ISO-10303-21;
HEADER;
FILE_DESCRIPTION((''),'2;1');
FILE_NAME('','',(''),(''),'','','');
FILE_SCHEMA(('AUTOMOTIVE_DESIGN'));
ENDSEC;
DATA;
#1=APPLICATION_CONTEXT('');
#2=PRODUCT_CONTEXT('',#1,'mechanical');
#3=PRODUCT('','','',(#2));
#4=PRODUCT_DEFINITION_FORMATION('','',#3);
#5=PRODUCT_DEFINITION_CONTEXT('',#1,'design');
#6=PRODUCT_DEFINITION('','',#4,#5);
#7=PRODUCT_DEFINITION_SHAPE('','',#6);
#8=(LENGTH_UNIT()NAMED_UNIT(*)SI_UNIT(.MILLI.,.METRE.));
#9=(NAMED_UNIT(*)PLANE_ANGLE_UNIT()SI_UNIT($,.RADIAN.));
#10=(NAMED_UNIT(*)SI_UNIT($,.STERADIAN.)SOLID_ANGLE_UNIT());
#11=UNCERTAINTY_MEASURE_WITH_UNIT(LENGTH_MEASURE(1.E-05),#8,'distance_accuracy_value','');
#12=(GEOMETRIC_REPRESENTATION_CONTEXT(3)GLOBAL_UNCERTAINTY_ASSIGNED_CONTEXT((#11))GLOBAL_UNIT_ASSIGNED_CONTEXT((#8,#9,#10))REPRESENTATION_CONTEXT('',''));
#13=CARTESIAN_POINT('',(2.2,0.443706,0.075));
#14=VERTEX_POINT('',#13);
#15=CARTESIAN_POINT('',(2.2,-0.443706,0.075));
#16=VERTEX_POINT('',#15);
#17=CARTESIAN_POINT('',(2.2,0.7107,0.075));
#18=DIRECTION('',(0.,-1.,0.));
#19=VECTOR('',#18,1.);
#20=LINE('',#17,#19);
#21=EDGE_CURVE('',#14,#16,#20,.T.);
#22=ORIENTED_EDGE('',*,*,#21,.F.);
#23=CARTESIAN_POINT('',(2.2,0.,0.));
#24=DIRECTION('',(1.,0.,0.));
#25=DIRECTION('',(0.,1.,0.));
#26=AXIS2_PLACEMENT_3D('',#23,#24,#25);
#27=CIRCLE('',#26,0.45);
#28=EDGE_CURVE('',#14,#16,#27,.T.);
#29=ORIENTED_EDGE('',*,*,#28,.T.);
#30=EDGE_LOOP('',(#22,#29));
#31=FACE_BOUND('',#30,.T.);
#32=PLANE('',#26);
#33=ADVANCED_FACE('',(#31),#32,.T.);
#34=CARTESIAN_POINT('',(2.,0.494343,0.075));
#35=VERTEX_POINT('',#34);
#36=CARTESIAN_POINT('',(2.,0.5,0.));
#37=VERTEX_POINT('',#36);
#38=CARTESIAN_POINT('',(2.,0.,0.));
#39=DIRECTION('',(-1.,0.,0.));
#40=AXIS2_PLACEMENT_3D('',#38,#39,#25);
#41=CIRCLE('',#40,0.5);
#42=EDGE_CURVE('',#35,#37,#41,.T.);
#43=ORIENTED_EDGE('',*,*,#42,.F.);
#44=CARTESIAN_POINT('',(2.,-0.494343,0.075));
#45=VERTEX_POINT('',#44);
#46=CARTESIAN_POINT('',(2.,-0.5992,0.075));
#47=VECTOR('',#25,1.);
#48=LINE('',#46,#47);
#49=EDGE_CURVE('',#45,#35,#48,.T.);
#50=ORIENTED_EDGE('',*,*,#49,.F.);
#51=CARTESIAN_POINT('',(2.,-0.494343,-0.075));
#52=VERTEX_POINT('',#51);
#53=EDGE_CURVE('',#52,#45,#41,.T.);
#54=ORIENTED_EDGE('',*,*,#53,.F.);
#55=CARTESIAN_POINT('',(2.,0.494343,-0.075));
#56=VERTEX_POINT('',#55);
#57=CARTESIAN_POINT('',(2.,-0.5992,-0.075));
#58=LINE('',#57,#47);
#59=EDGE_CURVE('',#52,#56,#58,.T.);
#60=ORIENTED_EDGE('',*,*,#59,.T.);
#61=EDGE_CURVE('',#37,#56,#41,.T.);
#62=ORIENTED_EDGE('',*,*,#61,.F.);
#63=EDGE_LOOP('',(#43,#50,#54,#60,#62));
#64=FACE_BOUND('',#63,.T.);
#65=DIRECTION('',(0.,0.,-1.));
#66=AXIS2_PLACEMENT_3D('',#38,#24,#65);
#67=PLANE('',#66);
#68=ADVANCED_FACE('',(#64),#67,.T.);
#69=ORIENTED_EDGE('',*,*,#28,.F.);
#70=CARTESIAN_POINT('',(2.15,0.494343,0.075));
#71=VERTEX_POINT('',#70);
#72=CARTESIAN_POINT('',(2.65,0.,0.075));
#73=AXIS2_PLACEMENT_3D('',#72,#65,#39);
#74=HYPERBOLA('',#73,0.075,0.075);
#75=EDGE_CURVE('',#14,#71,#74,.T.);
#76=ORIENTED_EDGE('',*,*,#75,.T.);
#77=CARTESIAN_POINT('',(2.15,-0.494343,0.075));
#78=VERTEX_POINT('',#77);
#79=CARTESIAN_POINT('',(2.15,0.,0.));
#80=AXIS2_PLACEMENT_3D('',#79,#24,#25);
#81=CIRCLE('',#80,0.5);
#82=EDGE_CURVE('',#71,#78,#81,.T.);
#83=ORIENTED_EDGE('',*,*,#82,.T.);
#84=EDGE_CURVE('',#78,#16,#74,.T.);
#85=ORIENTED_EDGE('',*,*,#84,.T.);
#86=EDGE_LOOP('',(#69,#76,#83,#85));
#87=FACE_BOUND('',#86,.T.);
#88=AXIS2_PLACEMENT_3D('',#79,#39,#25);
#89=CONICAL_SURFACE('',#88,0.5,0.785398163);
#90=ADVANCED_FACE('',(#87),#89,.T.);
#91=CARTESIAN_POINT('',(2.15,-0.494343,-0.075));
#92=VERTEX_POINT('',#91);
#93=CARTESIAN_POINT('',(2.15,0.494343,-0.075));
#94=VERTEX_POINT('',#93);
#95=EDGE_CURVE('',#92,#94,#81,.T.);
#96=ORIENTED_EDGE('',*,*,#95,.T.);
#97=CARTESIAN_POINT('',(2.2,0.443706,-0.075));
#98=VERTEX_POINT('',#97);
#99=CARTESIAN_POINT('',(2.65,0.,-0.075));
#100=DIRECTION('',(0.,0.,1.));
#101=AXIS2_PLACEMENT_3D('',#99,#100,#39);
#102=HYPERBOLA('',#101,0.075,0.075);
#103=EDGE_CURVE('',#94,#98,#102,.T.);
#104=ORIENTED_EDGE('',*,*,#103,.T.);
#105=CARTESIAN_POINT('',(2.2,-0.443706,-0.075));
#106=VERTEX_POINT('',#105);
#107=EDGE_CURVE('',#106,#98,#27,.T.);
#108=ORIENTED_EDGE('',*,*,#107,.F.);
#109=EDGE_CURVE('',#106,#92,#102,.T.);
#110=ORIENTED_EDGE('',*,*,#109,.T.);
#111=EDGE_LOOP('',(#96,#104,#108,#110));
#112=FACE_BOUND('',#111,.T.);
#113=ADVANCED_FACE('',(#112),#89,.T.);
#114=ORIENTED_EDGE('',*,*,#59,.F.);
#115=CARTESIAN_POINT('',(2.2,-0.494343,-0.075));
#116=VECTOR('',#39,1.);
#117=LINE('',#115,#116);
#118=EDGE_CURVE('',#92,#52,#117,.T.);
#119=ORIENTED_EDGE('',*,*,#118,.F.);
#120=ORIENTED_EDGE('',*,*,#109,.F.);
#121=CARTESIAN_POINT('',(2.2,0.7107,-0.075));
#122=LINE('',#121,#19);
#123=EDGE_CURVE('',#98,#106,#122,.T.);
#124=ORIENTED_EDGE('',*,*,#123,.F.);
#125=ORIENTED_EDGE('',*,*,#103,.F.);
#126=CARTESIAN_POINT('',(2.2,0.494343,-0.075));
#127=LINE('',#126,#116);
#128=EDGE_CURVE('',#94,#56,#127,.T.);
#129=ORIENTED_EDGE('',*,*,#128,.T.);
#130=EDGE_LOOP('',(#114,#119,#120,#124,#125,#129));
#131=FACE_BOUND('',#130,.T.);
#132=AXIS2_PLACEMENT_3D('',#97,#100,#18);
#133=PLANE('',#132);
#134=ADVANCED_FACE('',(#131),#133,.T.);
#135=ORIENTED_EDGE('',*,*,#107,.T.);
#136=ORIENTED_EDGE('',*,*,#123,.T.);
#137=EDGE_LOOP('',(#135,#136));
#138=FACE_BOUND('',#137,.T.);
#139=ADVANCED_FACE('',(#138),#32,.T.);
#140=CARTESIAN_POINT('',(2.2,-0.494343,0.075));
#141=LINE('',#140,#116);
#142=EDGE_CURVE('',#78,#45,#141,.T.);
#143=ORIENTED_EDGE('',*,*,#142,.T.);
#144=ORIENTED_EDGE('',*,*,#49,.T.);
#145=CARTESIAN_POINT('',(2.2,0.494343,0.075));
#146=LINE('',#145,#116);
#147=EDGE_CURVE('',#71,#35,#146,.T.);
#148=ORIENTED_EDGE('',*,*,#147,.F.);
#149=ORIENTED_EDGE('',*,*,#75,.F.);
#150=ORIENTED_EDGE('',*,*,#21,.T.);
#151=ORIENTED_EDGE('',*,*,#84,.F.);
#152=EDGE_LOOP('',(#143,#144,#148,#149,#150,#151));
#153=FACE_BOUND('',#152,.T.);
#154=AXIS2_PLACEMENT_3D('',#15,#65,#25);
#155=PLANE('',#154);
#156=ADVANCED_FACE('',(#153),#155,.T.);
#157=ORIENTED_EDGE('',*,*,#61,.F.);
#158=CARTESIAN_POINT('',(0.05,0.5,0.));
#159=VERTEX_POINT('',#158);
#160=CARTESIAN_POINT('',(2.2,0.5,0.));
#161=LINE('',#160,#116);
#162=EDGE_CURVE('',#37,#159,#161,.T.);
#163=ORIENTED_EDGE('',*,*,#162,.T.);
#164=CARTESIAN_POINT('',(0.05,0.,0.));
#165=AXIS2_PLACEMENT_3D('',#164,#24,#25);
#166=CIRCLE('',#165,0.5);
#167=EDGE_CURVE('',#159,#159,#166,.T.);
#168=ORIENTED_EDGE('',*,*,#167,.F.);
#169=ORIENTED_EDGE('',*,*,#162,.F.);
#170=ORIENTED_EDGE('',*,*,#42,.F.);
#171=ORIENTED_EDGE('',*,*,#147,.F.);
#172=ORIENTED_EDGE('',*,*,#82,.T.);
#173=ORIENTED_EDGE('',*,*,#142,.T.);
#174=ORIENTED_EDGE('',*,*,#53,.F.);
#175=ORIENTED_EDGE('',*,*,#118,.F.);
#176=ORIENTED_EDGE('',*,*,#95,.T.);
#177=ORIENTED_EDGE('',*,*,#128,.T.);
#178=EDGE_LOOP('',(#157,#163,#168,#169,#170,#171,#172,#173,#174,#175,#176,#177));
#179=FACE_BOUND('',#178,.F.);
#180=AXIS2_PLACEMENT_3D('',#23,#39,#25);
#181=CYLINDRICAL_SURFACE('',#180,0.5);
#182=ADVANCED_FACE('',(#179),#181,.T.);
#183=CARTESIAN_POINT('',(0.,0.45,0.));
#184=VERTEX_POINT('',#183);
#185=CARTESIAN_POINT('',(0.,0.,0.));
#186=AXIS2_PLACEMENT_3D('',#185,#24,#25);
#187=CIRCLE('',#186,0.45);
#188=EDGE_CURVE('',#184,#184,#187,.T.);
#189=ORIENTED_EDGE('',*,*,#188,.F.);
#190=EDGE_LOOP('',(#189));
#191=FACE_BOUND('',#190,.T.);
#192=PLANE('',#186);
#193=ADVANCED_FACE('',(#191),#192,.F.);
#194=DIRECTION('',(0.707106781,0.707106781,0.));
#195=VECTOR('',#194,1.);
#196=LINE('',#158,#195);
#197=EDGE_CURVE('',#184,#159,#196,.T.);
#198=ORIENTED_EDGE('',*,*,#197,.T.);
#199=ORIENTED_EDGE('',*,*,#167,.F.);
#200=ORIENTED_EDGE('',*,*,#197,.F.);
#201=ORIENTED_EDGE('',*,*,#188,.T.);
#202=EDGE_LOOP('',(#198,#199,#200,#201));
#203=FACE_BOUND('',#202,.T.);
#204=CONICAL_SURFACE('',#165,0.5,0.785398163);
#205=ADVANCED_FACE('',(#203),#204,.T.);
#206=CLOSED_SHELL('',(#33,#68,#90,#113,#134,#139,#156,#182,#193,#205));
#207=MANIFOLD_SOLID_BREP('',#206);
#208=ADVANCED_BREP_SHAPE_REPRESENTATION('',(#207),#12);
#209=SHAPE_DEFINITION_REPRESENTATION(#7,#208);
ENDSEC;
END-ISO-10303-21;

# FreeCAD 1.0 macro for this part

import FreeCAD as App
import Part
import Sketcher
from FreeCAD import Vector


def edges_at(feature, points):
    """Names of the edges that pass closest to the given points."""
    edges = feature.Shape.Edges
    near = lambda p: min(range(len(edges)), key=lambda i: edges[i].distToShape(Part.Vertex(*p))[0])
    return sorted({f"Edge{near(p) + 1}" for p in points})

doc = App.newDocument("Part")
body = doc.addObject("PartDesign::Body", "Body")

sketch1 = doc.addObject("Sketcher::SketchObject", "Sketch")
body.addObject(sketch1)
sketch1.AttachmentSupport = (doc.XY_Plane, [""])
sketch1.MapMode = "FlatFace"
sketch1.addGeometry([
    Part.LineSegment(Vector(0, 0.5, 0), Vector(0, 0, 0)),
    Part.LineSegment(Vector(0, 0, 0), Vector(2.2, 0, 0)),
    Part.LineSegment(Vector(2.2, 0, 0), Vector(2.2, 0.5, 0)),
    Part.LineSegment(Vector(2.2, 0.5, 0), Vector(0, 0.5, 0)),
], False)
sketch1.addConstraint([
    Sketcher.Constraint("Coincident", 0, 2, 1, 1),
    Sketcher.Constraint("Coincident", 1, 2, 2, 1),
    Sketcher.Constraint("Coincident", 2, 2, 3, 1),
    Sketcher.Constraint("Coincident", 3, 2, 0, 1),
    Sketcher.Constraint("Vertical", 0),
    Sketcher.Constraint("Horizontal", 1),
    Sketcher.Constraint("Vertical", 2),
    Sketcher.Constraint("Horizontal", 3),
    Sketcher.Constraint("Coincident", 0, 2, -1, 1),
    Sketcher.Constraint("DistanceX", 1, 1, 1, 2, 2.2),
    Sketcher.Constraint("DistanceY", 0, 2, 0, 1, 0.5),
])
revolution = doc.addObject("PartDesign::Revolution", "Revolution")
body.addObject(revolution)
revolution.Profile = sketch1
revolution.ReferenceAxis = (sketch1, ["H_Axis"])
revolution.Angle = 360
doc.recompute()

chamfer = doc.addObject("PartDesign::Chamfer", "Chamfer")
body.addObject(chamfer)
chamfer.Base = (revolution, edges_at(revolution, [(0, -0.5, 0), (2.2, -0.5, 0)]))
chamfer.Size = 0.05

sketch2 = doc.addObject("Sketcher::SketchObject", "Sketch001")
body.addObject(sketch2)
sketch2.AttachmentSupport = (doc.YZ_Plane, [""])
sketch2.MapMode = "FlatFace"
sketch2.AttachmentOffset = App.Placement(Vector(0, 0, 2.2), App.Rotation())
sketch2.addGeometry([
    Part.LineSegment(Vector(0.71, -0.07, 0), Vector(0.71, 0.07, 0)),
    Part.LineSegment(Vector(0.71, 0.07, 0), Vector(-0.6, 0.07, 0)),
    Part.LineSegment(Vector(-0.6, 0.07, 0), Vector(-0.6, -0.07, 0)),
    Part.LineSegment(Vector(-0.6, -0.07, 0), Vector(0.71, -0.07, 0)),
], False)
sketch2.addConstraint([
    Sketcher.Constraint("Coincident", 0, 2, 1, 1),
    Sketcher.Constraint("Coincident", 1, 2, 2, 1),
    Sketcher.Constraint("Coincident", 2, 2, 3, 1),
    Sketcher.Constraint("Coincident", 3, 2, 0, 1),
    Sketcher.Constraint("Vertical", 0),
    Sketcher.Constraint("Horizontal", 1),
    Sketcher.Constraint("Vertical", 2),
    Sketcher.Constraint("Horizontal", 3),
    Sketcher.Constraint("DistanceY", 0, 1, 0, 2, 0.15),
    Sketcher.Constraint("DistanceY", -1, 1, 0, 2, 0.075),
    Sketcher.Constraint("DistanceX", 1, 2, 1, 1, 1.31),
    Sketcher.Constraint("DistanceX", -1, 1, 0, 2, 0.7107),
])
pocket1 = doc.addObject("PartDesign::Pocket", "Pocket")
body.addObject(pocket1)
pocket1.Profile = sketch2
pocket1.Length = 0.2

doc.recompute()
